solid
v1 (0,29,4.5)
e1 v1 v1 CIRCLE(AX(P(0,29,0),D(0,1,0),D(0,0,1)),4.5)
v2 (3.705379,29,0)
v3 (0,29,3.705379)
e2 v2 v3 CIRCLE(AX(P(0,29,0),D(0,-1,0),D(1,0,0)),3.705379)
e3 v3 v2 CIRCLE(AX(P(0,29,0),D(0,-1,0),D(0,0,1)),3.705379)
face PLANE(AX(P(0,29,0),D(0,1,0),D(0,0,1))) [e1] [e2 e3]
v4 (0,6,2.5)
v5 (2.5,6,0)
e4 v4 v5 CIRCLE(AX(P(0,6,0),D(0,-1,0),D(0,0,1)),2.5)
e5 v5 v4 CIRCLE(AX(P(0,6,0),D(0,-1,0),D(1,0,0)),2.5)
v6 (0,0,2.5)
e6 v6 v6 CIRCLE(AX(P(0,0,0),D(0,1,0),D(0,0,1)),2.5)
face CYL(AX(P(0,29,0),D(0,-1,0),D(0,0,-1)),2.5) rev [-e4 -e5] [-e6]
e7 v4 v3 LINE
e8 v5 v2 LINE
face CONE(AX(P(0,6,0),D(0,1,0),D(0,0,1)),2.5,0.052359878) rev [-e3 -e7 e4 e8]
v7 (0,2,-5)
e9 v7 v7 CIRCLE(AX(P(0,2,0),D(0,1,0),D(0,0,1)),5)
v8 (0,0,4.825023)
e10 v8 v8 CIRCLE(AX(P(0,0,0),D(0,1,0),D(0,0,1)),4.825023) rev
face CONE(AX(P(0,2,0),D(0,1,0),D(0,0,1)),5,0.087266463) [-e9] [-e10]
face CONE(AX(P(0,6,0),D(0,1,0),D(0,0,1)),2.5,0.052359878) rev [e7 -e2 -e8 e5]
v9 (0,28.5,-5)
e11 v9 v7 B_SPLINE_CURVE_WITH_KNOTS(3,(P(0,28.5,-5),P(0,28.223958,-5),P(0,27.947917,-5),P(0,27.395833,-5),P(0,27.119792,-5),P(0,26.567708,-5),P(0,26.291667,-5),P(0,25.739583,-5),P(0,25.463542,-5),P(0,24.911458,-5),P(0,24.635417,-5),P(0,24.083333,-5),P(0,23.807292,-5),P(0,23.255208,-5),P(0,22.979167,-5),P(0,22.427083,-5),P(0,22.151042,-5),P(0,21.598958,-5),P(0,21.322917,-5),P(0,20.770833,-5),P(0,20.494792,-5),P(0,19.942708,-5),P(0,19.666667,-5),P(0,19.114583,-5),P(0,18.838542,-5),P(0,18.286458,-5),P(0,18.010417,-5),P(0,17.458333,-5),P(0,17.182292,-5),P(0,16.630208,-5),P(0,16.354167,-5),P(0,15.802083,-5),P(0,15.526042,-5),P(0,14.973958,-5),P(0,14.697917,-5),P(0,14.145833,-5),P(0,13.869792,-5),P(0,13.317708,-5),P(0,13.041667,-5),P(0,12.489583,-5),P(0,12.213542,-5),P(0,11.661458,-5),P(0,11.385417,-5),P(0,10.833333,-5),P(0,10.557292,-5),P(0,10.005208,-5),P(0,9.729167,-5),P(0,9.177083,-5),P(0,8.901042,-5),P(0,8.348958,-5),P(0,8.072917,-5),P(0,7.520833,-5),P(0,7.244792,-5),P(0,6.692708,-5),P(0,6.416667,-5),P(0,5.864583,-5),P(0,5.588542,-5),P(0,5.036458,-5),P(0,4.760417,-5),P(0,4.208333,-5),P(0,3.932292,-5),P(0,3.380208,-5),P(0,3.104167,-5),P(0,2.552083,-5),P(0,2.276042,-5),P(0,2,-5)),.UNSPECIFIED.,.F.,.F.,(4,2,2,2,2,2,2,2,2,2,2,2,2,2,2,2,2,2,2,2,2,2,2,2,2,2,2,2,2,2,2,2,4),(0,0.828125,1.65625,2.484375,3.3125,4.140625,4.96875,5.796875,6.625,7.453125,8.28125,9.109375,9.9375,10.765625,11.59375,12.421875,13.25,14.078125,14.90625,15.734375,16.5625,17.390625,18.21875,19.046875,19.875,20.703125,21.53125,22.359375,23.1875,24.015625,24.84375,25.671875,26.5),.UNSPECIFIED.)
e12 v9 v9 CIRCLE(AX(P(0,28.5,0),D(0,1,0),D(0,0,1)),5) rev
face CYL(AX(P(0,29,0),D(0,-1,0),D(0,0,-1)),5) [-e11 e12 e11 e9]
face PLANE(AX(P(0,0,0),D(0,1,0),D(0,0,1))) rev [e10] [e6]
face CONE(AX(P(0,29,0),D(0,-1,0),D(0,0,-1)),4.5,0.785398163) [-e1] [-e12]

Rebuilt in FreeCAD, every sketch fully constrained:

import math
import FreeCAD as App
import Part
import Sketcher

V = App.Vector
Q = App.Units.Quantity


def edges_at(feature, points):
    """Names of the edges that pass closest to the given points."""
    edges = feature.Shape.Edges
    near = lambda p: min(range(len(edges)), key=lambda i: edges[i].distToShape(Part.Vertex(*p))[0])
    return sorted({f"Edge{near(p) + 1}" for p in points})

doc = App.newDocument("Part")
body = doc.addObject("PartDesign::Body", "Body")

# Sketch on XZ plane
sketch1 = body.newObject("Sketcher::SketchObject", "Sketch")
sketch1.AttachmentSupport = (doc.getObject("XZ_Plane"), [""])
sketch1.MapMode = "FlatFace"
sketch1.addGeometry(Part.Circle(V(0, 0, 0), V(0, 0, 1), 5), False)
sketch1.addGeometry(Part.Circle(V(0, 0, 0), V(0, 0, 1), 2.5), False)
sketch1.addConstraint(Sketcher.Constraint("Coincident", 0, 3, -1, 1))
sketch1.addConstraint(Sketcher.Constraint("Coincident", 1, 3, -1, 1))
sketch1.addConstraint(Sketcher.Constraint("Diameter", 0, 10.0))
sketch1.addConstraint(Sketcher.Constraint("Diameter", 1, 5.0))
pad1 = body.newObject("PartDesign::Pad", "Pad")
pad1.Profile = sketch1
pad1.Length = 29
pad1.Reversed = True

# Sketch on XY plane
sketch2 = body.newObject("Sketcher::SketchObject", "Sketch001")
sketch2.AttachmentSupport = (doc.getObject("XY_Plane"), [""])
sketch2.MapMode = "FlatFace"
sketch2.addGeometry(Part.LineSegment(V(2.5, 6, 0), V(3.7, 29, 0)), False)
sketch2.addGeometry(Part.LineSegment(V(3.7, 29, 0), V(2.5, 29, 0)), False)
sketch2.addGeometry(Part.LineSegment(V(2.5, 29, 0), V(2.5, 6, 0)), False)
sketch2.addConstraint(Sketcher.Constraint("Coincident", 0, 2, 1, 1))
sketch2.addConstraint(Sketcher.Constraint("Coincident", 1, 2, 2, 1))
sketch2.addConstraint(Sketcher.Constraint("Coincident", 2, 2, 0, 1))
sketch2.addConstraint(Sketcher.Constraint("Horizontal", 1))
sketch2.addConstraint(Sketcher.Constraint("Vertical", 2))
sketch2.addConstraint(Sketcher.Constraint("DistanceY", 2, 2, 2, 1, 23.0))
sketch2.addConstraint(Sketcher.Constraint("Angle", 0, Q("87 deg")))
sketch2.addConstraint(Sketcher.Constraint("DistanceY", -1, 1, 0, 2, 29.0))
sketch2.addConstraint(Sketcher.Constraint("DistanceX", -1, 1, 1, 2, 2.5))

# Sketch on XZ plane
sketch3 = body.newObject("Sketcher::SketchObject", "Sketch002")
sketch3.AttachmentSupport = (doc.getObject("XZ_Plane"), [""])
sketch3.MapMode = "FlatFace"
sketch3.AttachmentOffset = App.Placement(V(0, 0, -29), App.Rotation())
sketch3.addGeometry(Part.ArcOfCircle(Part.Circle(V(0, 0, 0), V(0, 0, 1), 2.5), math.radians(0), math.radians(90)), False)
sketch3.addGeometry(Part.ArcOfCircle(Part.Circle(V(0, 0, 0), V(0, 0, 1), 2.5), math.radians(-90), math.radians(0)), False)
sketch3.addGeometry(Part.ArcOfCircle(Part.Circle(V(0, 0, 0), V(0, 0, 1), 2.5), math.radians(180), math.radians(270)), False)
sketch3.addGeometry(Part.ArcOfCircle(Part.Circle(V(0, 0, 0), V(0, 0, 1), 2.5), math.radians(90), math.radians(180)), False)
sketch3.addConstraint(Sketcher.Constraint("Tangent", 0, 1, 1, 2))
sketch3.addConstraint(Sketcher.Constraint("Tangent", 1, 1, 2, 2))
sketch3.addConstraint(Sketcher.Constraint("Tangent", 2, 1, 3, 2))
sketch3.addConstraint(Sketcher.Constraint("Tangent", 3, 1, 0, 2))
sketch3.addConstraint(Sketcher.Constraint("Coincident", 0, 3, -1, 1))
sketch3.addConstraint(Sketcher.Constraint("Equal", 0, 1))
sketch3.addConstraint(Sketcher.Constraint("PointOnObject", 0, 1, -1))
sketch3.addConstraint(Sketcher.Constraint("PointOnObject", 1, 1, -2))
sketch3.addConstraint(Sketcher.Constraint("PointOnObject", 2, 1, -1))
sketch3.addConstraint(Sketcher.Constraint("PointOnObject", 3, 1, -2))
sketch3.addConstraint(Sketcher.Constraint("Radius", 0, 2.5))
doc.recompute()

subtractivepipe = body.newObject("PartDesign::SubtractivePipe", "SubtractivePipe")
subtractivepipe.Profile = sketch2
subtractivepipe.Spine = (sketch3, ["Edge1", "Edge2", "Edge3", "Edge4"])
doc.recompute()

chamfer = body.newObject("PartDesign::Chamfer", "Chamfer")
chamfer.Base = (subtractivepipe, edges_at(subtractivepipe, [(0, 0, 5)]))
chamfer.ChamferType = "Two distances"
chamfer.Size = 2
chamfer.Size2 = 0.174977
doc.recompute()

chamfer2 = body.newObject("PartDesign::Chamfer", "Chamfer001")
chamfer2.Base = (chamfer, edges_at(chamfer, [(0, 29, 5)]))
chamfer2.Size = 0.5

doc.recompute()
